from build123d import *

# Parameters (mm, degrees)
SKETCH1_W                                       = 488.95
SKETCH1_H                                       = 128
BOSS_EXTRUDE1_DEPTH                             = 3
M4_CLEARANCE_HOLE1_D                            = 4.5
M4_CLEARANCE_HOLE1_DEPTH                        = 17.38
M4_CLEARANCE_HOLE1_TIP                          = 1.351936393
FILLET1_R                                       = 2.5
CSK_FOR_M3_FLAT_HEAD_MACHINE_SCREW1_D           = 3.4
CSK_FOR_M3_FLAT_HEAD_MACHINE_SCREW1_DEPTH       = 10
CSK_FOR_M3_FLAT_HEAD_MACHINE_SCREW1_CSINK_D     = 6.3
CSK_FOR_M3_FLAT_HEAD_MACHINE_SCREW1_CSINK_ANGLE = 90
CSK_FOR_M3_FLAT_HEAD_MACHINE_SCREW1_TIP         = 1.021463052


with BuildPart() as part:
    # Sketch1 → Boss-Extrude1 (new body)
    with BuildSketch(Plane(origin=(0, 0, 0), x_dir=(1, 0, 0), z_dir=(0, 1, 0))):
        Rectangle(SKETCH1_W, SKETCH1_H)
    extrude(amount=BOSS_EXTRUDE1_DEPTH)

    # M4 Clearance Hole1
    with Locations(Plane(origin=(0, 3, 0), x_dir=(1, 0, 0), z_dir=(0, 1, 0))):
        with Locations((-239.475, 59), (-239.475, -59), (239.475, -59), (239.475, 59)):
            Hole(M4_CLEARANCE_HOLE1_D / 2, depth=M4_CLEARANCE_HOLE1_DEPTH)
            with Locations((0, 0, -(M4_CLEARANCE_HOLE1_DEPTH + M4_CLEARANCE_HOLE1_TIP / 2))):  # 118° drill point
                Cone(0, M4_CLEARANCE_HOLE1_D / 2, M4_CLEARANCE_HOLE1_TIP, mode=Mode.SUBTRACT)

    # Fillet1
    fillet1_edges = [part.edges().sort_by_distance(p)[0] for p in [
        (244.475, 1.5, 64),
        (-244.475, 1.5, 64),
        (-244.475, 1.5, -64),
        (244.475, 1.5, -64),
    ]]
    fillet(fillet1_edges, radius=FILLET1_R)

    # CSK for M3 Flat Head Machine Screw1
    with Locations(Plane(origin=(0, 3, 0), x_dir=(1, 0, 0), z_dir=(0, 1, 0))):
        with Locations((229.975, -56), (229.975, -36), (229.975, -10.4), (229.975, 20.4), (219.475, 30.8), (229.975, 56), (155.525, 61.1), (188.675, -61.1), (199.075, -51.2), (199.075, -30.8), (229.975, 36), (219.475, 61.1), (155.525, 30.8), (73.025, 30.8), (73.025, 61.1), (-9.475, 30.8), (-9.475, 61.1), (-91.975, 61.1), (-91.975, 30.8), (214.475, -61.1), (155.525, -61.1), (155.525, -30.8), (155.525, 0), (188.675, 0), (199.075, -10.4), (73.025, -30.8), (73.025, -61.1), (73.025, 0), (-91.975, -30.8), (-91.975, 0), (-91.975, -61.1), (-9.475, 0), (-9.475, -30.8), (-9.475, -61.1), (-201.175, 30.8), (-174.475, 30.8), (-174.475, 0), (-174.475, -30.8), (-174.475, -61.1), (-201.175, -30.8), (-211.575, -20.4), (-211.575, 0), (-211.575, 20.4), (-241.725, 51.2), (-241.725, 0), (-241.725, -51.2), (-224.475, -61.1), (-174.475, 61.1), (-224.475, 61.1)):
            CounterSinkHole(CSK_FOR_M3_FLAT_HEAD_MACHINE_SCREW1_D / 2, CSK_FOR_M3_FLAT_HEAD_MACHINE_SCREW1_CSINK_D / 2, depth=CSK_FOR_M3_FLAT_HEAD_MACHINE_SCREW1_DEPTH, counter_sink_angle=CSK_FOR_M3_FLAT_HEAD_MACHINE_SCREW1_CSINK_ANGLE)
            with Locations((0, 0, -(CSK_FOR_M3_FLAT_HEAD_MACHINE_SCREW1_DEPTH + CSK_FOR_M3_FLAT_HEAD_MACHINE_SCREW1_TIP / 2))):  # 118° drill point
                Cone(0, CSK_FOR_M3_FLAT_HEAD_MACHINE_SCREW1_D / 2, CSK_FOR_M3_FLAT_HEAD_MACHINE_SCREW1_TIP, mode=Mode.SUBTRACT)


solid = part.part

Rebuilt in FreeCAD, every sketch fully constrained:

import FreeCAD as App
import Part
import Sketcher
Q = App.Units.Quantity


def edges_at(feature, points):
    """Names of the edges that pass closest to the given points."""
    edges = feature.Shape.Edges
    near = lambda p: min(range(len(edges)), key=lambda i: edges[i].distToShape(Part.Vertex(*p))[0])
    return sorted({f"Edge{near(p) + 1}" for p in points})


def add_polygon(sketch, points):
    """Adds a closed chain of lines whose ends are joined by coincident constraints."""
    first, n = sketch.GeometryCount, len(points)
    for a, b in zip(points, points[1:] + points[:1]):
        sketch.addGeometry(Part.LineSegment(App.Vector(*a, 0), App.Vector(*b, 0)), False)
    for i in range(n):
        sketch.addConstraint(Sketcher.Constraint("Coincident", first + i, 2, first + (i + 1) % n, 1))

doc = App.newDocument("Part")
body = doc.addObject("PartDesign::Body", "Body")

# Sketch on XZ plane
sketch1 = body.newObject("Sketcher::SketchObject", "Sketch")
sketch1.AttachmentSupport = (doc.getObject("XZ_Plane"), [""])
sketch1.MapMode = "FlatFace"
add_polygon(sketch1, [(-244.475, -64), (-244.475, 64), (244.475, 64), (244.475, -64)])  # lines 0-3
sketch1.addConstraint([
    Sketcher.Constraint("Vertical", 0),
    Sketcher.Constraint("Horizontal", 1),
    Sketcher.Constraint("Vertical", 2),
    Sketcher.Constraint("Horizontal", 3),
    Sketcher.Constraint("Symmetric", 0, 2, 2, 2, -1, 1),
    Sketcher.Constraint("DistanceY", 0, 1, 0, 2, Q("128 mm")),
    Sketcher.Constraint("DistanceX", 1, 1, 1, 2, Q("488.95 mm")),
])
pad1 = body.newObject("PartDesign::Pad", "Pad")
pad1.Profile = sketch1
pad1.Length = 3
pad1.Reversed = True

# Sketch on XZ plane
sketch2 = body.newObject("Sketcher::SketchObject", "Sketch001")
sketch2.AttachmentSupport = (doc.getObject("XZ_Plane"), [""])
sketch2.MapMode = "FlatFace"
sketch2.AttachmentOffset = App.Placement(App.Vector(0, 0, -3), App.Rotation())
sketch2.addGeometry([
    Part.Circle(App.Vector(-239.475, -59, 0), App.Vector(0, 0, 1), 2.25),
    Part.Circle(App.Vector(-239.475, 59, 0), App.Vector(0, 0, 1), 2.25),
    Part.Circle(App.Vector(239.475, 59, 0), App.Vector(0, 0, 1), 2.25),
    Part.Circle(App.Vector(239.475, -59, 0), App.Vector(0, 0, 1), 2.25),
], False)
sketch2.addConstraint([
    Sketcher.Constraint("Equal", 0, 1),
    Sketcher.Constraint("Equal", 1, 2),
    Sketcher.Constraint("Equal", 2, 3),
    Sketcher.Constraint("Symmetric", 0, 3, 2, 3, -1, 1),
    Sketcher.Constraint("Symmetric", 1, 3, 3, 3, -1, 1),
    Sketcher.Constraint("Symmetric", 1, 3, 2, 3, -2),
    Sketcher.Constraint("Diameter", 0, Q("4.5 mm")),
    Sketcher.Constraint("DistanceY", 0, 3, -1, 1, Q("59 mm")),
    Sketcher.Constraint("DistanceX", 1, 3, 2, 3, Q("478.95 mm")),
])
doc.recompute()
hole = body.newObject("PartDesign::Hole", "Hole")
hole.Profile = sketch2
hole.ThreadType = "None"
hole.Diameter = 4.5
hole.DepthType = "Dimension"
hole.Depth = 17.38
hole.DrillPoint = "Angled"
hole.DrillPointAngle = 118
hole.Reversed = True
doc.recompute()

fillet = body.newObject("PartDesign::Fillet", "Fillet")
fillet.Base = (hole, edges_at(hole, [
    (244.475, 1.5, 64),
    (-244.475, 1.5, 64),
    (-244.475, 1.5, -64),
    (244.475, 1.5, -64),
]))
fillet.Radius = 2.5

# Sketch on XZ plane
sketch3 = body.newObject("Sketcher::SketchObject", "Sketch002")
sketch3.AttachmentSupport = (doc.getObject("XZ_Plane"), [""])
sketch3.MapMode = "FlatFace"
sketch3.AttachmentOffset = App.Placement(App.Vector(0, 0, -3), App.Rotation())
sketch3.addGeometry([
    Part.Circle(App.Vector(229.975, 56, 0), App.Vector(0, 0, 1), 1.7),  # 0
    Part.Circle(App.Vector(229.975, 36, 0), App.Vector(0, 0, 1), 1.7),  # 1
    Part.Circle(App.Vector(229.975, 10.4, 0), App.Vector(0, 0, 1), 1.7),  # 2
    Part.Circle(App.Vector(229.975, -20.4, 0), App.Vector(0, 0, 1), 1.7),  # 3
    Part.Circle(App.Vector(219.475, -30.8, 0), App.Vector(0, 0, 1), 1.7),  # 4
    Part.Circle(App.Vector(229.975, -56, 0), App.Vector(0, 0, 1), 1.7),  # 5
    Part.Circle(App.Vector(155.525, -61.1, 0), App.Vector(0, 0, 1), 1.7),  # 6
    Part.Circle(App.Vector(188.675, 61.1, 0), App.Vector(0, 0, 1), 1.7),  # 7
    Part.Circle(App.Vector(199.075, 51.2, 0), App.Vector(0, 0, 1), 1.7),  # 8
    Part.Circle(App.Vector(199.075, 30.8, 0), App.Vector(0, 0, 1), 1.7),  # 9
    Part.Circle(App.Vector(229.975, -36, 0), App.Vector(0, 0, 1), 1.7),  # 10
    Part.Circle(App.Vector(219.475, -61.1, 0), App.Vector(0, 0, 1), 1.7),  # 11
    Part.Circle(App.Vector(155.525, -30.8, 0), App.Vector(0, 0, 1), 1.7),  # 12
    Part.Circle(App.Vector(73.025, -30.8, 0), App.Vector(0, 0, 1), 1.7),  # 13
    Part.Circle(App.Vector(73.025, -61.1, 0), App.Vector(0, 0, 1), 1.7),  # 14
    Part.Circle(App.Vector(-9.475, -30.8, 0), App.Vector(0, 0, 1), 1.7),  # 15
    Part.Circle(App.Vector(-9.475, -61.1, 0), App.Vector(0, 0, 1), 1.7),  # 16
    Part.Circle(App.Vector(-91.975, -61.1, 0), App.Vector(0, 0, 1), 1.7),  # 17
    Part.Circle(App.Vector(-91.975, -30.8, 0), App.Vector(0, 0, 1), 1.7),  # 18
    Part.Circle(App.Vector(214.475, 61.1, 0), App.Vector(0, 0, 1), 1.7),  # 19
    Part.Circle(App.Vector(155.525, 61.1, 0), App.Vector(0, 0, 1), 1.7),  # 20
    Part.Circle(App.Vector(155.525, 30.8, 0), App.Vector(0, 0, 1), 1.7),  # 21
    Part.Circle(App.Vector(155.525, 0, 0), App.Vector(0, 0, 1), 1.7),  # 22
    Part.Circle(App.Vector(188.675, 0, 0), App.Vector(0, 0, 1), 1.7),  # 23
    Part.Circle(App.Vector(199.075, 10.4, 0), App.Vector(0, 0, 1), 1.7),  # 24
    Part.Circle(App.Vector(73.025, 30.8, 0), App.Vector(0, 0, 1), 1.7),  # 25
    Part.Circle(App.Vector(73.025, 61.1, 0), App.Vector(0, 0, 1), 1.7),  # 26
    Part.Circle(App.Vector(73.025, 0, 0), App.Vector(0, 0, 1), 1.7),  # 27
    Part.Circle(App.Vector(-91.975, 30.8, 0), App.Vector(0, 0, 1), 1.7),  # 28
    Part.Circle(App.Vector(-91.975, 0, 0), App.Vector(0, 0, 1), 1.7),  # 29
    Part.Circle(App.Vector(-91.975, 61.1, 0), App.Vector(0, 0, 1), 1.7),  # 30
    Part.Circle(App.Vector(-9.475, 0, 0), App.Vector(0, 0, 1), 1.7),  # 31
    Part.Circle(App.Vector(-9.475, 30.8, 0), App.Vector(0, 0, 1), 1.7),  # 32
    Part.Circle(App.Vector(-9.475, 61.1, 0), App.Vector(0, 0, 1), 1.7),  # 33
    Part.Circle(App.Vector(-201.175, -30.8, 0), App.Vector(0, 0, 1), 1.7),  # 34
    Part.Circle(App.Vector(-174.475, -30.8, 0), App.Vector(0, 0, 1), 1.7),  # 35
    Part.Circle(App.Vector(-174.475, 0, 0), App.Vector(0, 0, 1), 1.7),  # 36
    Part.Circle(App.Vector(-174.475, 30.8, 0), App.Vector(0, 0, 1), 1.7),  # 37
    Part.Circle(App.Vector(-174.475, 61.1, 0), App.Vector(0, 0, 1), 1.7),  # 38
    Part.Circle(App.Vector(-201.175, 30.8, 0), App.Vector(0, 0, 1), 1.7),  # 39
    Part.Circle(App.Vector(-211.575, 20.4, 0), App.Vector(0, 0, 1), 1.7),  # 40
    Part.Circle(App.Vector(-211.575, 0, 0), App.Vector(0, 0, 1), 1.7),  # 41
    Part.Circle(App.Vector(-211.575, -20.4, 0), App.Vector(0, 0, 1), 1.7),  # 42
    Part.Circle(App.Vector(-241.725, -51.2, 0), App.Vector(0, 0, 1), 1.7),  # 43
    Part.Circle(App.Vector(-241.725, 0, 0), App.Vector(0, 0, 1), 1.7),  # 44
    Part.Circle(App.Vector(-241.725, 51.2, 0), App.Vector(0, 0, 1), 1.7),  # 45
    Part.Circle(App.Vector(-224.475, 61.1, 0), App.Vector(0, 0, 1), 1.7),  # 46
    Part.Circle(App.Vector(-174.475, -61.1, 0), App.Vector(0, 0, 1), 1.7),  # 47
    Part.Circle(App.Vector(-224.475, -61.1, 0), App.Vector(0, 0, 1), 1.7),  # 48
], False)
sketch3.addConstraint([
    Sketcher.Constraint("Equal", 0, 1),
    Sketcher.Constraint("Equal", 1, 2),
    Sketcher.Constraint("Equal", 2, 3),
    Sketcher.Constraint("Equal", 3, 4),
    Sketcher.Constraint("Equal", 4, 5),
    Sketcher.Constraint("Equal", 5, 6),
    Sketcher.Constraint("Equal", 6, 7),
    Sketcher.Constraint("Equal", 7, 8),
    Sketcher.Constraint("Equal", 8, 9),
    Sketcher.Constraint("Equal", 9, 10),
    Sketcher.Constraint("Equal", 10, 11),
    Sketcher.Constraint("Equal", 11, 12),
    Sketcher.Constraint("Equal", 12, 13),
    Sketcher.Constraint("Equal", 13, 14),
    Sketcher.Constraint("Equal", 14, 15),
    Sketcher.Constraint("Equal", 15, 16),
    Sketcher.Constraint("Equal", 16, 17),
    Sketcher.Constraint("Equal", 17, 18),
    Sketcher.Constraint("Equal", 18, 19),
    Sketcher.Constraint("Equal", 19, 20),
    Sketcher.Constraint("Equal", 20, 21),
    Sketcher.Constraint("Equal", 21, 22),
    Sketcher.Constraint("Equal", 22, 23),
    Sketcher.Constraint("Equal", 23, 24),
    Sketcher.Constraint("Equal", 24, 25),
    Sketcher.Constraint("Equal", 25, 26),
    Sketcher.Constraint("Equal", 26, 27),
    Sketcher.Constraint("Equal", 27, 28),
    Sketcher.Constraint("Equal", 28, 29),
    Sketcher.Constraint("Equal", 29, 30),
    Sketcher.Constraint("Equal", 30, 31),
    Sketcher.Constraint("Equal", 31, 32),
    Sketcher.Constraint("Equal", 32, 33),
    Sketcher.Constraint("Equal", 33, 34),
    Sketcher.Constraint("Equal", 34, 35),
    Sketcher.Constraint("Equal", 35, 36),
    Sketcher.Constraint("Equal", 36, 37),
    Sketcher.Constraint("Equal", 37, 38),
    Sketcher.Constraint("Equal", 38, 39),
    Sketcher.Constraint("Equal", 39, 40),
    Sketcher.Constraint("Equal", 40, 41),
    Sketcher.Constraint("Equal", 41, 42),
    Sketcher.Constraint("Equal", 42, 43),
    Sketcher.Constraint("Equal", 43, 44),
    Sketcher.Constraint("Equal", 44, 45),
    Sketcher.Constraint("Equal", 45, 46),
    Sketcher.Constraint("Equal", 46, 47),
    Sketcher.Constraint("Equal", 47, 48),
    Sketcher.Constraint("Symmetric", 0, 3, 5, 3, -1),
    Sketcher.Constraint("Symmetric", 1, 3, 10, 3, -1),
    Sketcher.Constraint("Symmetric", 6, 3, 20, 3, -1),
    Sketcher.Constraint("Symmetric", 12, 3, 21, 3, -1),
    Sketcher.Constraint("Symmetric", 13, 3, 25, 3, -1),
    Sketcher.Constraint("Symmetric", 14, 3, 26, 3, -1),
    Sketcher.Constraint("Symmetric", 18, 3, 28, 3, -1),
    Sketcher.Constraint("Symmetric", 17, 3, 30, 3, -1),
    Sketcher.Constraint("Symmetric", 15, 3, 32, 3, -1),
    Sketcher.Constraint("Symmetric", 16, 3, 33, 3, -1),
    Sketcher.Constraint("Symmetric", 35, 3, 37, 3, -1),
    Sketcher.Constraint("Symmetric", 34, 3, 39, 3, -1),
    Sketcher.Constraint("Symmetric", 40, 3, 42, 3, -1),
    Sketcher.Constraint("Symmetric", 43, 3, 45, 3, -1),
    Sketcher.Constraint("Symmetric", 38, 3, 47, 3, -1),
    Sketcher.Constraint("Symmetric", 46, 3, 48, 3, -1),
    Sketcher.Constraint("PointOnObject", 22, 3, -1),
    Sketcher.Constraint("PointOnObject", 23, 3, -1),
    Sketcher.Constraint("PointOnObject", 27, 3, -1),
    Sketcher.Constraint("PointOnObject", 29, 3, -1),
    Sketcher.Constraint("PointOnObject", 31, 3, -1),
    Sketcher.Constraint("PointOnObject", 36, 3, -1),
    Sketcher.Constraint("PointOnObject", 41, 3, -1),
    Sketcher.Constraint("PointOnObject", 44, 3, -1),
    Sketcher.Constraint("Horizontal", 6, 3, 11, 3),
    Sketcher.Constraint("Horizontal", 4, 3, 12, 3),
    Sketcher.Constraint("Horizontal", 12, 3, 13, 3),
    Sketcher.Constraint("Horizontal", 11, 3, 14, 3),
    Sketcher.Constraint("Horizontal", 13, 3, 15, 3),
    Sketcher.Constraint("Horizontal", 14, 3, 16, 3),
    Sketcher.Constraint("Horizontal", 16, 3, 17, 3),
    Sketcher.Constraint("Horizontal", 15, 3, 18, 3),
    Sketcher.Constraint("Horizontal", 7, 3, 19, 3),
    Sketcher.Constraint("Horizontal", 19, 3, 20, 3),
    Sketcher.Constraint("Horizontal", 9, 3, 21, 3),
    Sketcher.Constraint("Horizontal", 2, 3, 24, 3),
    Sketcher.Constraint("Horizontal", 18, 3, 34, 3),
    Sketcher.Constraint("Horizontal", 34, 3, 35, 3),
    Sketcher.Constraint("Horizontal", 33, 3, 38, 3),
    Sketcher.Constraint("Horizontal", 3, 3, 42, 3),
    Sketcher.Constraint("Horizontal", 8, 3, 45, 3),
    Sketcher.Constraint("Horizontal", 38, 3, 46, 3),
    Sketcher.Constraint("Vertical", 0, 3, 1, 3),
    Sketcher.Constraint("Vertical", 1, 3, 2, 3),
    Sketcher.Constraint("Vertical", 2, 3, 3, 3),
    Sketcher.Constraint("Vertical", 8, 3, 9, 3),
    Sketcher.Constraint("Vertical", 4, 3, 11, 3),
    Sketcher.Constraint("Vertical", 6, 3, 12, 3),
    Sketcher.Constraint("Vertical", 13, 3, 14, 3),
    Sketcher.Constraint("Vertical", 15, 3, 16, 3),
    Sketcher.Constraint("Vertical", 17, 3, 18, 3),
    Sketcher.Constraint("Vertical", 21, 3, 22, 3),
    Sketcher.Constraint("Vertical", 7, 3, 23, 3),
    Sketcher.Constraint("Vertical", 9, 3, 24, 3),
    Sketcher.Constraint("Vertical", 26, 3, 27, 3),
    Sketcher.Constraint("Vertical", 28, 3, 29, 3),
    Sketcher.Constraint("Vertical", 16, 3, 31, 3),
    Sketcher.Constraint("Vertical", 35, 3, 36, 3),
    Sketcher.Constraint("Vertical", 37, 3, 38, 3),
    Sketcher.Constraint("Vertical", 40, 3, 41, 3),
    Sketcher.Constraint("Vertical", 43, 3, 44, 3),
    Sketcher.Constraint("Diameter", 0, Q("3.4 mm")),
    Sketcher.Constraint("DistanceY", -1, 1, 0, 3, Q("56 mm")),
    Sketcher.Constraint("DistanceY", -1, 1, 1, 3, Q("36 mm")),
    Sketcher.Constraint("DistanceX", 15, 3, 12, 3, Q("165 mm")),
    Sketcher.Constraint("DistanceX", 17, 3, 14, 3, Q("165 mm")),
    Sketcher.Constraint("DistanceX", 46, 3, 38, 3, Q("50 mm")),
    Sketcher.Constraint("DistanceY", -1, 1, 2, 3, Q("10.4 mm")),
    Sketcher.Constraint("DistanceY", 3, 3, -1, 1, Q("20.4 mm")),
    Sketcher.Constraint("DistanceY", 4, 3, -1, 1, Q("30.8 mm")),
    Sketcher.Constraint("DistanceY", 6, 3, -1, 1, Q("61.1 mm")),
    Sketcher.Constraint("DistanceY", -1, 1, 8, 3, Q("51.2 mm")),
    Sketcher.Constraint("DistanceX", 4, 3, 3, 3, Q("10.5 mm")),
    Sketcher.Constraint("DistanceX", 7, 3, 0, 3, Q("41.3 mm")),
    Sketcher.Constraint("DistanceX", 7, 3, 8, 3, Q("10.4 mm")),
    Sketcher.Constraint("DistanceX", 13, 3, 12, 3, Q("82.5 mm")),
    Sketcher.Constraint("DistanceX", 19, 3, 0, 3, Q("15.5 mm")),
    Sketcher.Constraint("DistanceX", 34, 3, 18, 3, Q("109.2 mm")),
    Sketcher.Constraint("DistanceX", 34, 3, 35, 3, Q("26.7 mm")),
    Sketcher.Constraint("DistanceX", 40, 3, 39, 3, Q("10.4 mm")),
    Sketcher.Constraint("DistanceX", 6, 3, 4, 3, Q("63.95 mm")),
    Sketcher.Constraint("DistanceX", 43, 3, 42, 3, Q("30.15 mm")),
    Sketcher.Constraint("DistanceX", -1, 1, 0, 3, Q("229.975 mm")),
])
doc.recompute()
hole2 = body.newObject("PartDesign::Hole", "Hole001")
hole2.Profile = sketch3
hole2.ThreadType = "None"
hole2.Diameter = 3.4
hole2.DepthType = "Dimension"
hole2.Depth = 10
hole2.DrillPoint = "Angled"
hole2.DrillPointAngle = 118
hole2.HoleCutType = "Countersink"
hole2.HoleCutDiameter = 6.3
hole2.HoleCutCountersinkAngle = 90
hole2.Reversed = True

doc.recompute()
